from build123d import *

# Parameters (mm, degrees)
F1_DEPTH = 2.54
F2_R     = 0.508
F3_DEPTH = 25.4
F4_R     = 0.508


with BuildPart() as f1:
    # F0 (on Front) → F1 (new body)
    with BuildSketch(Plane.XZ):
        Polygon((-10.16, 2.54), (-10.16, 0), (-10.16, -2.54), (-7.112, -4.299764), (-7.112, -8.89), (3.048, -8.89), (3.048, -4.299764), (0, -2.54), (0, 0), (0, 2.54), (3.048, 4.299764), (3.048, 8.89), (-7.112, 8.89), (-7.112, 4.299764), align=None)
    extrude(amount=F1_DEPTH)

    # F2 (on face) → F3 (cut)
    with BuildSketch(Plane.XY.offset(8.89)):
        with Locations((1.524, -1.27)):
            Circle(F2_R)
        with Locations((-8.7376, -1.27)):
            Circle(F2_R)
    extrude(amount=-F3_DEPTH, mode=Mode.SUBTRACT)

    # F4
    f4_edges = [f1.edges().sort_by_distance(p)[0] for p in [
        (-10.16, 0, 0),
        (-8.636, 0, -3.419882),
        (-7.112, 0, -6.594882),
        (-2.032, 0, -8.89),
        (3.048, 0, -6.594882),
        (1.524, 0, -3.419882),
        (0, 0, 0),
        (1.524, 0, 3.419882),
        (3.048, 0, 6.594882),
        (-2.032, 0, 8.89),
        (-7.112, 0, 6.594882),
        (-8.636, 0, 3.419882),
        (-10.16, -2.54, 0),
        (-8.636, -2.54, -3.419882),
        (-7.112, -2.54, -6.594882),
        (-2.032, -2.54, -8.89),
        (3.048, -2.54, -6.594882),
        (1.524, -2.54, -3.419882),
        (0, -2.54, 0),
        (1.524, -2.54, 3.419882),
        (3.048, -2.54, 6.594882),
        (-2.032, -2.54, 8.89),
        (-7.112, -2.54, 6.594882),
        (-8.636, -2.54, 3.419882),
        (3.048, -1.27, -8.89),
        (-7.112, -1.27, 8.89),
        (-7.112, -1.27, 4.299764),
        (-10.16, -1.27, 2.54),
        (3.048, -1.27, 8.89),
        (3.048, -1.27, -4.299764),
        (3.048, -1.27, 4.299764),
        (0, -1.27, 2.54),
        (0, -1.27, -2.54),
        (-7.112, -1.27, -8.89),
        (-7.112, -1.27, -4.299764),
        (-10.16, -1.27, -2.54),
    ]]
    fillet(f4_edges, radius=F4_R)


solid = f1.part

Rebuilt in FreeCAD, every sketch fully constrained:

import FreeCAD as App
import Part
import Sketcher

V = App.Vector
Q = App.Units.Quantity


def edges_at(feature, points):
    """Names of the edges that pass closest to the given points."""
    edges = feature.Shape.Edges
    near = lambda p: min(range(len(edges)), key=lambda i: edges[i].distToShape(Part.Vertex(*p))[0])
    return sorted({f"Edge{near(p) + 1}" for p in points})

doc = App.newDocument("Part")
body = doc.addObject("PartDesign::Body", "Body")

sketch1 = doc.addObject("Sketcher::SketchObject", "Sketch")
body.addObject(sketch1)
sketch1.AttachmentSupport = (doc.XZ_Plane, [""])
sketch1.MapMode = "FlatFace"
sketch1.addGeometry([
    Part.LineSegment(V(-10.2, 2.5, 0), V(-10.2, -2.5, 0)),
    Part.LineSegment(V(-10.2, -2.5, 0), V(-7.1, -4.3, 0)),
    Part.LineSegment(V(-7.1, -4.3, 0), V(-7.1, -8.9, 0)),
    Part.LineSegment(V(-7.1, -8.9, 0), V(3, -8.9, 0)),
    Part.LineSegment(V(3, -8.9, 0), V(3, -4.3, 0)),
    Part.LineSegment(V(3, -4.3, 0), V(0, -2.5, 0)),
    Part.LineSegment(V(0, -2.5, 0), V(0, 2.5, 0)),
    Part.LineSegment(V(0, 2.5, 0), V(3, 4.3, 0)),
    Part.LineSegment(V(3, 4.3, 0), V(3, 8.9, 0)),
    Part.LineSegment(V(3, 8.9, 0), V(-7.1, 8.9, 0)),
    Part.LineSegment(V(-7.1, 8.9, 0), V(-7.1, 4.3, 0)),
    Part.LineSegment(V(-7.1, 4.3, 0), V(-10.2, 2.5, 0)),
], False)
sketch1.addConstraint([
    Sketcher.Constraint("Coincident", 0, 2, 1, 1),
    Sketcher.Constraint("Coincident", 1, 2, 2, 1),
    Sketcher.Constraint("Coincident", 2, 2, 3, 1),
    Sketcher.Constraint("Coincident", 3, 2, 4, 1),
    Sketcher.Constraint("Coincident", 4, 2, 5, 1),
    Sketcher.Constraint("Coincident", 5, 2, 6, 1),
    Sketcher.Constraint("Coincident", 6, 2, 7, 1),
    Sketcher.Constraint("Coincident", 7, 2, 8, 1),
    Sketcher.Constraint("Coincident", 8, 2, 9, 1),
    Sketcher.Constraint("Coincident", 9, 2, 10, 1),
    Sketcher.Constraint("Coincident", 10, 2, 11, 1),
    Sketcher.Constraint("Coincident", 11, 2, 0, 1),
    Sketcher.Constraint("Vertical", 0),
    Sketcher.Constraint("Vertical", 2),
    Sketcher.Constraint("Horizontal", 3),
    Sketcher.Constraint("Vertical", 4),
    Sketcher.Constraint("Vertical", 6),
    Sketcher.Constraint("Vertical", 8),
    Sketcher.Constraint("Horizontal", 9),
    Sketcher.Constraint("Vertical", 10),
    Sketcher.Constraint("Symmetric", 5, 2, 6, 2, -1, 1),
    Sketcher.Constraint("Symmetric", 4, 2, 7, 2, -1),
    Sketcher.Constraint("Symmetric", 2, 2, 9, 2, -1),
    Sketcher.Constraint("Parallel", 1, 5),
    Sketcher.Constraint("Parallel", 7, 11),
    Sketcher.Constraint("Horizontal", 1, 2, 4, 2),
    Sketcher.Constraint("Horizontal", 0, 2, 5, 2),
    Sketcher.Constraint("Horizontal", 7, 2, 10, 2),
    Sketcher.Constraint("DistanceX", 3, 1, 3, 2, Q("0.4 in")),
    Sketcher.Constraint("DistanceY", 0, 2, 0, 1, Q("0.2 in")),
    Sketcher.Constraint("Angle", 1, Q("-30.000005 deg")),
    Sketcher.Constraint("DistanceX", 1, 2, -1, 1, Q("0.28 in")),
    Sketcher.Constraint("DistanceY", 2, 2, -1, 1, Q("0.35 in")),
])
pad1 = doc.addObject("PartDesign::Pad", "Pad")
body.addObject(pad1)
pad1.Profile = sketch1
pad1.Length = Q("0.1 in")

sketch2 = doc.addObject("Sketcher::SketchObject", "Sketch001")
body.addObject(sketch2)
sketch2.AttachmentSupport = (doc.XY_Plane, [""])
sketch2.MapMode = "FlatFace"
sketch2.AttachmentOffset = App.Placement(V(0, 0, 0.35 * 25.4), App.Rotation())
sketch2.addGeometry([
    Part.Circle(V(1.5, -1.3, 0), V(0, 0, 1), 0.5),
    Part.Circle(V(-8.7, -1.3, 0), V(0, 0, 1), 0.5),
], False)
sketch2.addConstraint([
    Sketcher.Constraint("Equal", 0, 1),
    Sketcher.Constraint("Horizontal", 0, 3, 1, 3),
    Sketcher.Constraint("Diameter", 0, Q("0.04 in")),
    Sketcher.Constraint("DistanceX", -1, 1, 0, 3, Q("0.06 in")),
    Sketcher.Constraint("DistanceY", 0, 3, -1, 1, Q("0.05 in")),
    Sketcher.Constraint("DistanceX", 1, 3, -1, 1, Q("0.344 in")),
])
pocket1 = doc.addObject("PartDesign::Pocket", "Pocket")
body.addObject(pocket1)
pocket1.Profile = sketch2
pocket1.Length = Q("1 in")
doc.recompute()

fillet = doc.addObject("PartDesign::Fillet", "Fillet")
body.addObject(fillet)
fillet.Base = (pocket1, edges_at(pocket1, [
    (-10.16, 0, 0),
    (-8.636, 0, -3.42),
    (-7.112, 0, -6.595),
    (-2.032, 0, -8.89),
    (3.048, 0, -6.595),
    (1.524, 0, -3.42),
    (0, 0, 0),
    (1.524, 0, 3.42),
    (3.048, 0, 6.595),
    (-2.032, 0, 8.89),
    (-7.112, 0, 6.595),
    (-8.636, 0, 3.42),
    (-10.16, -2.54, 0),
    (-8.636, -2.54, -3.42),
    (-7.112, -2.54, -6.595),
    (-2.032, -2.54, -8.89),
    (3.048, -2.54, -6.595),
    (1.524, -2.54, -3.42),
    (0, -2.54, 0),
    (1.524, -2.54, 3.42),
    (3.048, -2.54, 6.595),
    (-2.032, -2.54, 8.89),
    (-7.112, -2.54, 6.595),
    (-8.636, -2.54, 3.42),
    (3.048, -1.27, -8.89),
    (-7.112, -1.27, 8.89),
    (-7.112, -1.27, 4.3),
    (-10.16, -1.27, 2.54),
    (3.048, -1.27, 8.89),
    (3.048, -1.27, -4.3),
    (3.048, -1.27, 4.3),
    (0, -1.27, 2.54),
    (0, -1.27, -2.54),
    (-7.112, -1.27, -8.89),
    (-7.112, -1.27, -4.3),
    (-10.16, -1.27, -2.54),
]))
fillet.Radius = Q("0.02 in")

doc.recompute()
